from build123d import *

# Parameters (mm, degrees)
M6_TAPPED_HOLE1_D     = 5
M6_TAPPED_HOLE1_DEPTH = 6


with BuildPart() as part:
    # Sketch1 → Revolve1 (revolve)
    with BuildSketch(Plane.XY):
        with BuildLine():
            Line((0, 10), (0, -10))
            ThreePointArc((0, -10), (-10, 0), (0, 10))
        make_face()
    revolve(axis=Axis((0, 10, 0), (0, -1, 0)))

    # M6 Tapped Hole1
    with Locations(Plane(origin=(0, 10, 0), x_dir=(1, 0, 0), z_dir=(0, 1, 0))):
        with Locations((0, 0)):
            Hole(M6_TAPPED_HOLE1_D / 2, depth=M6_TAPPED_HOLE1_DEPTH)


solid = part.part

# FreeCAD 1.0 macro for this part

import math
import FreeCAD as App
import Part
import Sketcher
from FreeCAD import Vector

doc = App.newDocument("Part")
body = doc.addObject("PartDesign::Body", "Body")

# Sketch on XY plane
sketch1 = body.newObject("Sketcher::SketchObject", "Sketch")
sketch1.AttachmentSupport = (doc.getObject("XY_Plane"), [""])
sketch1.MapMode = "FlatFace"
sketch1.addGeometry([
    Part.LineSegment(Vector(0, -10, 0), Vector(0, 10, 0)),
    Part.ArcOfCircle(Part.Circle(Vector(0, 0, 0), Vector(0, 0, 1), 10), math.radians(90), math.radians(270)),
], False)
sketch1.addConstraint([
    Sketcher.Constraint("Coincident", 0, 1, 1, 2),
    Sketcher.Constraint("Coincident", 1, 1, 0, 2),
    Sketcher.Constraint("Vertical", 0),
    Sketcher.Constraint("Coincident", 1, 3, -1, 1),
    Sketcher.Constraint("PointOnObject", 0, 1, -2),
    Sketcher.Constraint("Radius", 1, 10.0),
])
revolution = body.newObject("PartDesign::Revolution", "Revolution")
revolution.Profile = sketch1
revolution.ReferenceAxis = (sketch1, ["V_Axis"])
revolution.Angle = 360

# Sketch on XZ plane
sketch2 = body.newObject("Sketcher::SketchObject", "Sketch001")
sketch2.AttachmentSupport = (doc.getObject("XZ_Plane"), [""])
sketch2.MapMode = "FlatFace"
sketch2.AttachmentOffset = App.Placement(Vector(0, 0, -10), App.Rotation())
sketch2.addGeometry(Part.Circle(Vector(0, 0, 0), Vector(0, 0, 1), 2.5), False)
sketch2.addConstraint([
    Sketcher.Constraint("Coincident", 0, 3, -1, 1),
    Sketcher.Constraint("Diameter", 0, 5.0),
])
doc.recompute()
hole = body.newObject("PartDesign::Hole", "Hole")
hole.Profile = sketch2
hole.ThreadType = "None"
hole.Diameter = 5
hole.DepthType = "Dimension"
hole.Depth = 6
hole.DrillPoint = "Flat"
hole.Reversed = True

doc.recompute()
